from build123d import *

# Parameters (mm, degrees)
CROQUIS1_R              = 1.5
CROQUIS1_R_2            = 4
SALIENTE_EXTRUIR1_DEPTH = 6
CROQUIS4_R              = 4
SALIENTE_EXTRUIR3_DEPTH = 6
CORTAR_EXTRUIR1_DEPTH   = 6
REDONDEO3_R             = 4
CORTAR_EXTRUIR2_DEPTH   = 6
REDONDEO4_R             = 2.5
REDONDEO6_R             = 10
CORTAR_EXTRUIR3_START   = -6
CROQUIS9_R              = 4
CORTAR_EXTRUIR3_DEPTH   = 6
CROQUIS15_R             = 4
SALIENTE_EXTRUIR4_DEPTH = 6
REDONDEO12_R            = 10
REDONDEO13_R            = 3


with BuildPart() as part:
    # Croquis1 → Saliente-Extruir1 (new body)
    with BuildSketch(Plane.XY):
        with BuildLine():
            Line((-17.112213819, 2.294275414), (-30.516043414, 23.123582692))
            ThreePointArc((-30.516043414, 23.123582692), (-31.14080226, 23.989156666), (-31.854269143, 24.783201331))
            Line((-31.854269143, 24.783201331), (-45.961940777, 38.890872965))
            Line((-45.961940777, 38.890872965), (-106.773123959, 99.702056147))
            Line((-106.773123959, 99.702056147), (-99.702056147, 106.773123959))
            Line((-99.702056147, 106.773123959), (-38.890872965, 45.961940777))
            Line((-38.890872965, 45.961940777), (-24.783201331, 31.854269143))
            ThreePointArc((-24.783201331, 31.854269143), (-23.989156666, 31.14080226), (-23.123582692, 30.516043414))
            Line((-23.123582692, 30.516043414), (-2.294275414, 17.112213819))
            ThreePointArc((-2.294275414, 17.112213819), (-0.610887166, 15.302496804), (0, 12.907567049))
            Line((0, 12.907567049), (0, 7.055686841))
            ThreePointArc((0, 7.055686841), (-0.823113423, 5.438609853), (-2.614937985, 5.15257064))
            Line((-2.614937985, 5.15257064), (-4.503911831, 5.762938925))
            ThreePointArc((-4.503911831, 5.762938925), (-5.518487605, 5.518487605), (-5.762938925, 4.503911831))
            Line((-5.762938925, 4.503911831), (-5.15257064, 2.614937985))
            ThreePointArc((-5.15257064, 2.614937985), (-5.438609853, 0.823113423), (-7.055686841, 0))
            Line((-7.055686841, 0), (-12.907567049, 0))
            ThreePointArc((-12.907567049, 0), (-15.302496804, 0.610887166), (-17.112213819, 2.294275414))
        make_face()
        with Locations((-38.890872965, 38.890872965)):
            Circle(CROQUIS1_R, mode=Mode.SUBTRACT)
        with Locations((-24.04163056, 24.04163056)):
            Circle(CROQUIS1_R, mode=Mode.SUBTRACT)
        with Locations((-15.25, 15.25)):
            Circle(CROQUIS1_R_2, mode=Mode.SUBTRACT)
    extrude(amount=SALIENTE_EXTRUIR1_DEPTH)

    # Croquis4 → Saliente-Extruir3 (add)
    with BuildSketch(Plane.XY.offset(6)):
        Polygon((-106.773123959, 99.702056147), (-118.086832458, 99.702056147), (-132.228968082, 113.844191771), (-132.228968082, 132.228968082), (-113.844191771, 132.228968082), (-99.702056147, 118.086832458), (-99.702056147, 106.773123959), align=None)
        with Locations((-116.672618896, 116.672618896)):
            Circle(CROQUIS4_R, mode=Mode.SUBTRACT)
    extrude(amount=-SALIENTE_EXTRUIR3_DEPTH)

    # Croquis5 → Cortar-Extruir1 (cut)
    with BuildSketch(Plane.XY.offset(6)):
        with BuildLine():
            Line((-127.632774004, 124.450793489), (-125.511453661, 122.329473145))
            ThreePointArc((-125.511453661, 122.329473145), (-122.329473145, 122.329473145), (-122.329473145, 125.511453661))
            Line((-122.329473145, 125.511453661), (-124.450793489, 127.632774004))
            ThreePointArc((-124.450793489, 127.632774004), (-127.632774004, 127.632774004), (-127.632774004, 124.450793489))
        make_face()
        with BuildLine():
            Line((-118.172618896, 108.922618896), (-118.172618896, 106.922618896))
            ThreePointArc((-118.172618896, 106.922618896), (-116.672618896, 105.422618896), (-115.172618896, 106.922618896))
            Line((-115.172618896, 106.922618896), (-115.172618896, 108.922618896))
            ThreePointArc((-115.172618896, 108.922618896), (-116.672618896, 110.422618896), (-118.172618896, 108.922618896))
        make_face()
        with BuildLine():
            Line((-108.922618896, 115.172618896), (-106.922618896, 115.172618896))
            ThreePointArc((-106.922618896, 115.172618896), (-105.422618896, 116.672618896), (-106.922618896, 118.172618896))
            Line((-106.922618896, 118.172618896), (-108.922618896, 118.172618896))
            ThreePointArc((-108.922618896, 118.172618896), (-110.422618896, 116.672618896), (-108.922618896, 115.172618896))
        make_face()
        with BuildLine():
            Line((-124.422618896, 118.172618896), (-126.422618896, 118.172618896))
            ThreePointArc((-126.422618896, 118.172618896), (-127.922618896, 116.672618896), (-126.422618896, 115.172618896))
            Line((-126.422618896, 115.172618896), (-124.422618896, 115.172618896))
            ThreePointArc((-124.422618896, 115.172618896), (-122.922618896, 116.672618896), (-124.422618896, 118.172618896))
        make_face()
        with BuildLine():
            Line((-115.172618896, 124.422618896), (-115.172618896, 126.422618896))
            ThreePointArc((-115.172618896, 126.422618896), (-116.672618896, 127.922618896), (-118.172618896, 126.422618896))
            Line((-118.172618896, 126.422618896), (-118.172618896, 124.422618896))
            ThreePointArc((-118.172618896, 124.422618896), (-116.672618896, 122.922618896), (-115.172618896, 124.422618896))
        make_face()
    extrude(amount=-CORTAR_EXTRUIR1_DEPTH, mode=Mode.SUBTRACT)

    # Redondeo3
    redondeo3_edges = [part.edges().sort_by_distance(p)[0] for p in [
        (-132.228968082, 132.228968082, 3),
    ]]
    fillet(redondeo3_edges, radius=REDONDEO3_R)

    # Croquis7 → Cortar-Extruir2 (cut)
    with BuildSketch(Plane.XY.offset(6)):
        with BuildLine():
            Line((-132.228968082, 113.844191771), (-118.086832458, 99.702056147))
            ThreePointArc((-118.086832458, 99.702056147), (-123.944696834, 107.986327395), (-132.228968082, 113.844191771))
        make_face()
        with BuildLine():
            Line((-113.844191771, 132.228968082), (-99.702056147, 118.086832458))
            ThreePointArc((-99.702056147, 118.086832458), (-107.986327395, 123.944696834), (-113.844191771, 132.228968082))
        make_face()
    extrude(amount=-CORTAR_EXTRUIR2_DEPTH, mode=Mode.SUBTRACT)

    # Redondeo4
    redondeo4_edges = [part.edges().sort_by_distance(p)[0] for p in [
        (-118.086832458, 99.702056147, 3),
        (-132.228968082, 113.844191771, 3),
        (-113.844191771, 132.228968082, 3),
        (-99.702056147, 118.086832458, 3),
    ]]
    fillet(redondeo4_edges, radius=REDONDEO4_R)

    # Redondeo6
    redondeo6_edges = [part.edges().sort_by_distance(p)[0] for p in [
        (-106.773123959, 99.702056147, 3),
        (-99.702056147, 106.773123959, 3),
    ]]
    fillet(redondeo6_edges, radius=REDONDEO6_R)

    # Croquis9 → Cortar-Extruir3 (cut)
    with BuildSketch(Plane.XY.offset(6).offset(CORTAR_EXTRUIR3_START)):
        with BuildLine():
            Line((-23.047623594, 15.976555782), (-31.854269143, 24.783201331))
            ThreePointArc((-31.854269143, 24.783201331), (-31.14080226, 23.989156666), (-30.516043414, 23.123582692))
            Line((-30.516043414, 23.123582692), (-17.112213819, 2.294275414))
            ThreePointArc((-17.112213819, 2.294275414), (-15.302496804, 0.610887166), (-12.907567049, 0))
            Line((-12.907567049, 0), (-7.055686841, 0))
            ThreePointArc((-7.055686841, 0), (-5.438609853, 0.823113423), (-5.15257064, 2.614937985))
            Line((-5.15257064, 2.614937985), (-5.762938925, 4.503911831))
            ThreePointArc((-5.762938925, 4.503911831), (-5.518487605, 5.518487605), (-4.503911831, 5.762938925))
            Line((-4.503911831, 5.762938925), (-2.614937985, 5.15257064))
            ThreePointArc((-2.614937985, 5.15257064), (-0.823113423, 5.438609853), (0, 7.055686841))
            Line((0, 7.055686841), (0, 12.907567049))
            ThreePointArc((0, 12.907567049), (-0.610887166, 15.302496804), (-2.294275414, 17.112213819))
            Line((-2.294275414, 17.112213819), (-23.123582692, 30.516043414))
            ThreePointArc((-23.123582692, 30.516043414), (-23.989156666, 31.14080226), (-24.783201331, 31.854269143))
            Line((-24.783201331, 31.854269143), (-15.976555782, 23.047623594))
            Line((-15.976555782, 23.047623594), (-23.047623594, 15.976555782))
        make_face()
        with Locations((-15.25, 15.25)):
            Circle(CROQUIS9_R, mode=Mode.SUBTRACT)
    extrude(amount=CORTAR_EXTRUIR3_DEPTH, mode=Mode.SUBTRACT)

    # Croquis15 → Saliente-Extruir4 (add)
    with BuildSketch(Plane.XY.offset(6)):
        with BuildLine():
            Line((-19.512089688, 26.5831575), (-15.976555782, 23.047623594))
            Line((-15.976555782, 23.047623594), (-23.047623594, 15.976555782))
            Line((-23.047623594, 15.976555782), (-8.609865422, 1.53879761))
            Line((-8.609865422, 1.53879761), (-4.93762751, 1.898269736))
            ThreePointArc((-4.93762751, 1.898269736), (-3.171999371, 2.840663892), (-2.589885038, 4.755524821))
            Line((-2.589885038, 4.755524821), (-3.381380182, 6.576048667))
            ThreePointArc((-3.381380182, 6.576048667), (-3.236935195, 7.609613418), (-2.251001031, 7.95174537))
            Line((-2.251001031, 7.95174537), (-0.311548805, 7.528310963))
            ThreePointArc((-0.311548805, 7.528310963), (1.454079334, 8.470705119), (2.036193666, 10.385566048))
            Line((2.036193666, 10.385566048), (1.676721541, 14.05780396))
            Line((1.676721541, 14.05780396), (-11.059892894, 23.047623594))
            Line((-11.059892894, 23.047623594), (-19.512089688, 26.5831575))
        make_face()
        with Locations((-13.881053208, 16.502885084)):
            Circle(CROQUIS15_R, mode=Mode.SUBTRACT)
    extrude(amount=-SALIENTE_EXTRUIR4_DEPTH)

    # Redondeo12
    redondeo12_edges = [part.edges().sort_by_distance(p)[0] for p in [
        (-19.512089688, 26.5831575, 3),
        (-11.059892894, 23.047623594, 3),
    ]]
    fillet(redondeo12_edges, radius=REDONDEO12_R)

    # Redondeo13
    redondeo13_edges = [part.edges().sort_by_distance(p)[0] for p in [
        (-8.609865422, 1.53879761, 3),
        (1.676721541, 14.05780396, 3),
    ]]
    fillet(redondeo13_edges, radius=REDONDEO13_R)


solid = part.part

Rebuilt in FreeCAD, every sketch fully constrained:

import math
import FreeCAD as App
import Part
import Sketcher
Q = App.Units.Quantity


def edges_at(feature, points):
    """Names of the edges that pass closest to the given points."""
    edges = feature.Shape.Edges
    near = lambda p: min(range(len(edges)), key=lambda i: edges[i].distToShape(Part.Vertex(*p))[0])
    return sorted({f"Edge{near(p) + 1}" for p in points})


def add_polygon(sketch, points):
    """Adds a closed chain of lines whose ends are joined by coincident constraints."""
    first, n = sketch.GeometryCount, len(points)
    for a, b in zip(points, points[1:] + points[:1]):
        sketch.addGeometry(Part.LineSegment(App.Vector(*a, 0), App.Vector(*b, 0)), False)
    for i in range(n):
        sketch.addConstraint(Sketcher.Constraint("Coincident", first + i, 2, first + (i + 1) % n, 1))

doc = App.newDocument("Part")
body = doc.addObject("PartDesign::Body", "Body")

sketch1 = body.newObject("Sketcher::SketchObject", "Sketch")
sketch1.AttachmentSupport = (doc.getObject("XY_Plane"), [""])
sketch1.MapMode = "FlatFace"
sketch1.addGeometry([
    Part.LineSegment(App.Vector(-30.5, 23.1, 0), App.Vector(-17.1, 2.3, 0)),
    Part.ArcOfCircle(Part.Circle(App.Vector(-12.9, 5, 0), App.Vector(0, 0, 1), 5), math.radians(-147), math.radians(-90)),
    Part.LineSegment(App.Vector(-12.9, 0, 0), App.Vector(-7.1, 0, 0)),
    Part.ArcOfCircle(Part.Circle(App.Vector(-7.1, 2, 0), App.Vector(0, 0, 1), 2), math.radians(-90), math.radians(18)),
    Part.LineSegment(App.Vector(-5.2, 2.6, 0), App.Vector(-5.8, 4.5, 0)),
    Part.ArcOfCircle(Part.Circle(App.Vector(-4.8, 4.8, 0), App.Vector(0, 0, 1), 1), math.radians(72), math.radians(198)),
    Part.LineSegment(App.Vector(-4.5, 5.8, 0), App.Vector(-2.6, 5.2, 0)),
    Part.ArcOfCircle(Part.Circle(App.Vector(-2, 7.1, 0), App.Vector(0, 0, 1), 2), math.radians(-108), math.radians(0)),
    Part.LineSegment(App.Vector(0, 7.1, 0), App.Vector(0, 12.9, 0)),
    Part.ArcOfCircle(Part.Circle(App.Vector(-5, 12.9, 0), App.Vector(0, 0, 1), 5), math.radians(0), math.radians(57)),
    Part.LineSegment(App.Vector(-2.3, 17.1, 0), App.Vector(-23.1, 30.5, 0)),
    Part.ArcOfCircle(Part.Circle(App.Vector(-17.7, 38.9, 0), App.Vector(0, 0, 1), 10), math.radians(-135), math.radians(-122.76)),
    Part.LineSegment(App.Vector(-24.8, 31.9, 0), App.Vector(-99.7, 106.8, 0)),
    Part.LineSegment(App.Vector(-99.7, 106.8, 0), App.Vector(-106.8, 99.7, 0)),
    Part.LineSegment(App.Vector(-106.8, 99.7, 0), App.Vector(-31.9, 24.8, 0)),
    Part.ArcOfCircle(Part.Circle(App.Vector(-38.9, 17.7, 0), App.Vector(0, 0, 1), 10), math.radians(32.76), math.radians(45)),
    Part.Circle(App.Vector(-15.2, 15.2, 0), App.Vector(0, 0, 1), 4),
    Part.Circle(App.Vector(-24, 24, 0), App.Vector(0, 0, 1), 1.5),
    Part.Circle(App.Vector(-38.9, 38.9, 0), App.Vector(0, 0, 1), 1.5),
], False)
sketch1.addConstraint([
    Sketcher.Constraint("Tangent", 0, 2, 1, 1),
    Sketcher.Constraint("Tangent", 1, 2, 2, 1),
    Sketcher.Constraint("Tangent", 2, 2, 3, 1),
    Sketcher.Constraint("Tangent", 3, 2, 4, 1),
    Sketcher.Constraint("Tangent", 4, 2, 5, 2),
    Sketcher.Constraint("Tangent", 5, 1, 6, 1),
    Sketcher.Constraint("Tangent", 6, 2, 7, 1),
    Sketcher.Constraint("Tangent", 7, 2, 8, 1),
    Sketcher.Constraint("Tangent", 8, 2, 9, 1),
    Sketcher.Constraint("Tangent", 9, 2, 10, 1),
    Sketcher.Constraint("Tangent", 10, 2, 11, 2),
    Sketcher.Constraint("Tangent", 11, 1, 12, 1),
    Sketcher.Constraint("Coincident", 12, 2, 13, 1),
    Sketcher.Constraint("Coincident", 13, 2, 14, 1),
    Sketcher.Constraint("Tangent", 14, 2, 15, 2),
    Sketcher.Constraint("Tangent", 15, 1, 0, 1),
    Sketcher.Constraint("Horizontal", 2),
    Sketcher.Constraint("Vertical", 8),
    Sketcher.Constraint("Equal", 3, 7),
    Sketcher.Constraint("Equal", 1, 9),
    Sketcher.Constraint("Equal", 11, 15),
    Sketcher.Constraint("Equal", 17, 18),
    Sketcher.Constraint("PointOnObject", 1, 2, -1),
    Sketcher.Constraint("PointOnObject", 7, 2, -2),
    Sketcher.Constraint("Perpendicular", 12, 13),
    Sketcher.Constraint("Perpendicular", 13, 14),
    Sketcher.Constraint("Equal", 2, 8),
    Sketcher.Constraint("Equal", 4, 6),
    Sketcher.Constraint("Equal", 0, 10),
    Sketcher.Constraint("Equal", 12, 14),
    Sketcher.Constraint("Diameter", 16, Q("8 mm")),
    Sketcher.Constraint("Diameter", 17, Q("3 mm")),
    Sketcher.Constraint("Radius", 1, Q("5 mm")),
    Sketcher.Constraint("Radius", 3, Q("2 mm")),
    Sketcher.Constraint("Radius", 5, Q("1 mm")),
    Sketcher.Constraint("Radius", 11, Q("10 mm")),
    Sketcher.Constraint("Angle", 12, Q("135 deg")),
    Sketcher.Constraint("Distance", 13, Q("10 mm")),
    Sketcher.Constraint("DistanceX", 16, 3, -1, 1, Q("15.25 mm")),
    Sketcher.Constraint("DistanceY", -1, 1, 16, 3, Q("15.25 mm")),
    Sketcher.Constraint("DistanceY", 3, 2, 5, 1, Q("3.148001 mm")),
    Sketcher.Constraint("DistanceX", 4, 2, 6, 2, Q("3.148001 mm")),
    Sketcher.Constraint("DistanceX", 2, 1, 2, 2, Q("5.85188 mm")),
    Sketcher.Constraint("DistanceX", 11, 1, -1, 1, Q("24.783201 mm")),
    Sketcher.Constraint("Distance", 0, Q("24.76939 mm")),
    Sketcher.Constraint("Distance", 12, Q("105.951261 mm")),
    Sketcher.Constraint("DistanceX", 17, 3, -1, 1, Q("24.041631 mm")),
    Sketcher.Constraint("DistanceY", -1, 1, 17, 3, Q("24.041631 mm")),
    Sketcher.Constraint("DistanceX", 18, 3, 11, 3, Q("21.178739 mm")),
    Sketcher.Constraint("DistanceY", 15, 3, 18, 3, Q("21.178739 mm")),
])
pad1 = body.newObject("PartDesign::Pad", "Pad")
pad1.Profile = sketch1
pad1.Length = 6

sketch2 = body.newObject("Sketcher::SketchObject", "Sketch001")
sketch2.AttachmentSupport = (doc.getObject("XY_Plane"), [""])
sketch2.MapMode = "FlatFace"
sketch2.AttachmentOffset = App.Placement(App.Vector(0, 0, 6), App.Rotation())
add_polygon(sketch2, [(-118.1, 99.7), (-106.8, 99.7), (-99.7, 106.8), (-99.7, 118.1), (-113.8, 132.2), (-132.2, 132.2), (-132.2, 113.8)])
sketch2.addGeometry(Part.Circle(App.Vector(-116.7, 116.7, 0), App.Vector(0, 0, 1), 4), False)
sketch2.addConstraint([
    Sketcher.Constraint("Horizontal", 0),
    Sketcher.Constraint("Vertical", 2),
    Sketcher.Constraint("Horizontal", 4),
    Sketcher.Constraint("Vertical", 5),
    Sketcher.Constraint("Perpendicular", 1, 3),
    Sketcher.Constraint("Parallel", 3, 6),
    Sketcher.Constraint("Equal", 0, 2),
    Sketcher.Constraint("Equal", 4, 5),
    Sketcher.Constraint("Equal", 3, 6),
    Sketcher.Constraint("Diameter", 7, Q("8 mm")),
    Sketcher.Constraint("Distance", 1, Q("10 mm")),
    Sketcher.Constraint("Distance", 3, Q("20 mm")),
    Sketcher.Constraint("DistanceX", 0, 1, 0, 2, Q("11.313708 mm")),
    Sketcher.Constraint("DistanceX", 7, 3, -1, 1, Q("116.672619 mm")),
    Sketcher.Constraint("DistanceY", -1, 1, 7, 3, Q("116.672619 mm")),
    Sketcher.Constraint("DistanceX", 3, 2, -1, 1, Q("113.844192 mm")),
    Sketcher.Constraint("DistanceY", -1, 1, 3, 2, Q("132.228968 mm")),
])
pad2 = body.newObject("PartDesign::Pad", "Pad001")
pad2.Profile = sketch2
pad2.Length = 6
pad2.Reversed = True

sketch3 = body.newObject("Sketcher::SketchObject", "Sketch002")
sketch3.AttachmentSupport = (doc.getObject("XY_Plane"), [""])
sketch3.MapMode = "FlatFace"
sketch3.AttachmentOffset = App.Placement(App.Vector(0, 0, 6), App.Rotation())
sketch3.addGeometry([
    Part.LineSegment(App.Vector(-127.6, 124.5, 0), App.Vector(-125.5, 122.3, 0)),
    Part.ArcOfCircle(Part.Circle(App.Vector(-123.9, 123.9, 0), App.Vector(0, 0, 1), 2.2), math.radians(-135), math.radians(45)),
    Part.LineSegment(App.Vector(-122.3, 125.5, 0), App.Vector(-124.5, 127.6, 0)),
    Part.ArcOfCircle(Part.Circle(App.Vector(-126, 126, 0), App.Vector(0, 0, 1), 2.2), math.radians(45), math.radians(225)),
    Part.LineSegment(App.Vector(-118.2, 108.9, 0), App.Vector(-118.2, 106.9, 0)),
    Part.ArcOfCircle(Part.Circle(App.Vector(-116.7, 106.9, 0), App.Vector(0, 0, 1), 1.5), math.radians(180), math.radians(360)),
    Part.LineSegment(App.Vector(-115.2, 106.9, 0), App.Vector(-115.2, 108.9, 0)),
    Part.ArcOfCircle(Part.Circle(App.Vector(-116.7, 108.9, 0), App.Vector(0, 0, 1), 1.5), math.radians(0), math.radians(180)),
    Part.LineSegment(App.Vector(-108.9, 115.2, 0), App.Vector(-106.9, 115.2, 0)),
    Part.ArcOfCircle(Part.Circle(App.Vector(-106.9, 116.7, 0), App.Vector(0, 0, 1), 1.5), math.radians(-90), math.radians(90)),
    Part.LineSegment(App.Vector(-106.9, 118.2, 0), App.Vector(-108.9, 118.2, 0)),
    Part.ArcOfCircle(Part.Circle(App.Vector(-108.9, 116.7, 0), App.Vector(0, 0, 1), 1.5), math.radians(90), math.radians(270)),
    Part.LineSegment(App.Vector(-124.4, 118.2, 0), App.Vector(-126.4, 118.2, 0)),
    Part.ArcOfCircle(Part.Circle(App.Vector(-126.4, 116.7, 0), App.Vector(0, 0, 1), 1.5), math.radians(90), math.radians(270)),
    Part.LineSegment(App.Vector(-126.4, 115.2, 0), App.Vector(-124.4, 115.2, 0)),
    Part.ArcOfCircle(Part.Circle(App.Vector(-124.4, 116.7, 0), App.Vector(0, 0, 1), 1.5), math.radians(-90), math.radians(90)),
    Part.LineSegment(App.Vector(-115.2, 124.4, 0), App.Vector(-115.2, 126.4, 0)),
    Part.ArcOfCircle(Part.Circle(App.Vector(-116.7, 126.4, 0), App.Vector(0, 0, 1), 1.5), math.radians(0), math.radians(180)),
    Part.LineSegment(App.Vector(-118.2, 126.4, 0), App.Vector(-118.2, 124.4, 0)),
    Part.ArcOfCircle(Part.Circle(App.Vector(-116.7, 124.4, 0), App.Vector(0, 0, 1), 1.5), math.radians(180), math.radians(360)),
], False)
sketch3.addConstraint([
    Sketcher.Constraint("Tangent", 0, 2, 1, 1),
    Sketcher.Constraint("Tangent", 1, 2, 2, 1),
    Sketcher.Constraint("Tangent", 2, 2, 3, 1),
    Sketcher.Constraint("Tangent", 3, 2, 0, 1),
    Sketcher.Constraint("Tangent", 4, 2, 5, 1),
    Sketcher.Constraint("Tangent", 5, 2, 6, 1),
    Sketcher.Constraint("Tangent", 6, 2, 7, 1),
    Sketcher.Constraint("Tangent", 7, 2, 4, 1),
    Sketcher.Constraint("Tangent", 8, 2, 9, 1),
    Sketcher.Constraint("Tangent", 9, 2, 10, 1),
    Sketcher.Constraint("Tangent", 10, 2, 11, 1),
    Sketcher.Constraint("Tangent", 11, 2, 8, 1),
    Sketcher.Constraint("Tangent", 12, 2, 13, 1),
    Sketcher.Constraint("Tangent", 13, 2, 14, 1),
    Sketcher.Constraint("Tangent", 14, 2, 15, 1),
    Sketcher.Constraint("Tangent", 15, 2, 12, 1),
    Sketcher.Constraint("Tangent", 16, 2, 17, 1),
    Sketcher.Constraint("Tangent", 17, 2, 18, 1),
    Sketcher.Constraint("Tangent", 18, 2, 19, 1),
    Sketcher.Constraint("Tangent", 19, 2, 16, 1),
    Sketcher.Constraint("Vertical", 4),
    Sketcher.Constraint("Vertical", 6),
    Sketcher.Constraint("Horizontal", 8),
    Sketcher.Constraint("Horizontal", 10),
    Sketcher.Constraint("Horizontal", 12),
    Sketcher.Constraint("Horizontal", 14),
    Sketcher.Constraint("Vertical", 16),
    Sketcher.Constraint("Vertical", 18),
    Sketcher.Constraint("Equal", 1, 3),
    Sketcher.Constraint("Equal", 7, 9),
    Sketcher.Constraint("Equal", 11, 13),
    Sketcher.Constraint("Equal", 15, 17),
    Sketcher.Constraint("Horizontal", 11, 3, 13, 3),
    Sketcher.Constraint("Vertical", 7, 3, 17, 3),
    Sketcher.Constraint("Equal", 10, 12),
    Sketcher.Constraint("Equal", 14, 4),
    Sketcher.Constraint("Equal", 6, 16),
    Sketcher.Constraint("Radius", 5, Q("1.5 mm")),
    Sketcher.Constraint("DistanceX", 8, 1, 8, 2, Q("2 mm")),
    Sketcher.Constraint("Angle", 0, Q("-45 deg")),
    Sketcher.Constraint("Radius", 1, Q("2.25 mm")),
    Sketcher.Constraint("Distance", 0, Q("3 mm")),
    Sketcher.Constraint("DistanceX", 13, 3, 11, 3, Q("17.5 mm")),
    Sketcher.Constraint("DistanceX", 7, 3, 9, 3, Q("9.75 mm")),
    Sketcher.Constraint("DistanceY", 7, 3, 9, 3, Q("7.75 mm")),
    Sketcher.Constraint("DistanceY", 11, 3, 17, 3, Q("9.75 mm")),
    Sketcher.Constraint("DistanceX", 5, 3, -1, 1, Q("116.672619 mm")),
    Sketcher.Constraint("DistanceY", -1, 1, 5, 3, Q("106.922619 mm")),
    Sketcher.Constraint("DistanceX", 1, 3, -1, 1, Q("123.920463 mm")),
    Sketcher.Constraint("DistanceY", -1, 1, 1, 3, Q("123.920463 mm")),
])
pocket1 = body.newObject("PartDesign::Pocket", "Pocket")
pocket1.Profile = sketch3
pocket1.Length = 6
doc.recompute()

fillet = body.newObject("PartDesign::Fillet", "Fillet")
fillet.Base = (pocket1, edges_at(pocket1, [(-132.229, 132.229, 3)]))
fillet.Radius = 4

sketch4 = body.newObject("Sketcher::SketchObject", "Sketch003")
sketch4.AttachmentSupport = (doc.getObject("XY_Plane"), [""])
sketch4.MapMode = "FlatFace"
sketch4.AttachmentOffset = App.Placement(App.Vector(0, 0, 6), App.Rotation())
sketch4.addGeometry([
    Part.LineSegment(App.Vector(-132, 114, 0), App.Vector(-118, 100, 0)),
    Part.ArcOfCircle(Part.Circle(App.Vector(-145, 87, 0), App.Vector(0, 0, 1), 30), math.radians(26), math.radians(64)),
    Part.LineSegment(App.Vector(-100, 118, 0), App.Vector(-114, 132, 0)),
    Part.ArcOfCircle(Part.Circle(App.Vector(-87, 145, 0), App.Vector(0, 0, 1), 30), math.radians(-154), math.radians(-116)),
], False)
sketch4.addConstraint([
    Sketcher.Constraint("Coincident", 0, 1, 1, 2),
    Sketcher.Constraint("Coincident", 1, 1, 0, 2),
    Sketcher.Constraint("Coincident", 2, 1, 3, 2),
    Sketcher.Constraint("Coincident", 3, 1, 2, 2),
    Sketcher.Constraint("Equal", 1, 3),
    Sketcher.Constraint("Parallel", 0, 2),
    Sketcher.Constraint("Equal", 0, 2),
    Sketcher.Constraint("Radius", 1, Q("30 mm")),
    Sketcher.Constraint("Angle", 0, Q("-45 deg")),
    Sketcher.Constraint("Distance", 0, Q("20 mm")),
    Sketcher.Constraint("DistanceX", 1, 3, -1, 1, Q("145.1579 mm")),
    Sketcher.Constraint("DistanceY", -1, 1, 3, 3, Q("145.1579 mm")),
    Sketcher.Constraint("DistanceY", -1, 1, 0, 1, Q("113.844192 mm")),
    Sketcher.Constraint("DistanceX", 3, 1, -1, 1, Q("113.844192 mm")),
])
pocket2 = body.newObject("PartDesign::Pocket", "Pocket001")
pocket2.Profile = sketch4
pocket2.Length = 6
doc.recompute()

fillet2 = body.newObject("PartDesign::Fillet", "Fillet001")
fillet2.Base = (pocket2, edges_at(pocket2, [
    (-118.087, 99.702, 3),
    (-132.229, 113.844, 3),
    (-113.844, 132.229, 3),
    (-99.702, 118.087, 3),
]))
fillet2.Radius = 2.5
doc.recompute()

fillet3 = body.newObject("PartDesign::Fillet", "Fillet002")
fillet3.Base = (fillet2, edges_at(fillet2, [(-106.773, 99.702, 3), (-99.702, 106.773, 3)]))
fillet3.Radius = 10

sketch5 = body.newObject("Sketcher::SketchObject", "Sketch004")
sketch5.AttachmentSupport = (doc.getObject("XY_Plane"), [""])
sketch5.MapMode = "FlatFace"
sketch5.addGeometry([
    Part.LineSegment(App.Vector(-23, 16, 0), App.Vector(-31.9, 24.8, 0)),
    Part.ArcOfCircle(Part.Circle(App.Vector(-38.9, 17.7, 0), App.Vector(0, 0, 1), 10), math.radians(32.76), math.radians(45)),
    Part.LineSegment(App.Vector(-30.5, 23.1, 0), App.Vector(-17.1, 2.3, 0)),
    Part.ArcOfCircle(Part.Circle(App.Vector(-12.9, 5, 0), App.Vector(0, 0, 1), 5), math.radians(-147), math.radians(-90)),
    Part.LineSegment(App.Vector(-12.9, 0, 0), App.Vector(-7.1, 0, 0)),
    Part.ArcOfCircle(Part.Circle(App.Vector(-7.1, 2, 0), App.Vector(0, 0, 1), 2), math.radians(-90), math.radians(18)),
    Part.LineSegment(App.Vector(-5.2, 2.6, 0), App.Vector(-5.8, 4.5, 0)),
    Part.ArcOfCircle(Part.Circle(App.Vector(-4.8, 4.8, 0), App.Vector(0, 0, 1), 1), math.radians(72), math.radians(198)),
    Part.LineSegment(App.Vector(-4.5, 5.8, 0), App.Vector(-2.6, 5.2, 0)),
    Part.ArcOfCircle(Part.Circle(App.Vector(-2, 7.1, 0), App.Vector(0, 0, 1), 2), math.radians(-108), math.radians(0)),
    Part.LineSegment(App.Vector(0, 7.1, 0), App.Vector(0, 12.9, 0)),
    Part.ArcOfCircle(Part.Circle(App.Vector(-5, 12.9, 0), App.Vector(0, 0, 1), 5), math.radians(0), math.radians(57)),
    Part.LineSegment(App.Vector(-2.3, 17.1, 0), App.Vector(-23.1, 30.5, 0)),
    Part.ArcOfCircle(Part.Circle(App.Vector(-17.7, 38.9, 0), App.Vector(0, 0, 1), 10), math.radians(-135), math.radians(-122.76)),
    Part.LineSegment(App.Vector(-24.8, 31.9, 0), App.Vector(-16, 23, 0)),
    Part.LineSegment(App.Vector(-16, 23, 0), App.Vector(-23, 16, 0)),
    Part.Circle(App.Vector(-15.2, 15.2, 0), App.Vector(0, 0, 1), 4),
], False)
sketch5.addConstraint([
    Sketcher.Constraint("Tangent", 0, 2, 1, 2),
    Sketcher.Constraint("Tangent", 1, 1, 2, 1),
    Sketcher.Constraint("Tangent", 2, 2, 3, 1),
    Sketcher.Constraint("Tangent", 3, 2, 4, 1),
    Sketcher.Constraint("Tangent", 4, 2, 5, 1),
    Sketcher.Constraint("Tangent", 5, 2, 6, 1),
    Sketcher.Constraint("Tangent", 6, 2, 7, 2),
    Sketcher.Constraint("Tangent", 7, 1, 8, 1),
    Sketcher.Constraint("Tangent", 8, 2, 9, 1),
    Sketcher.Constraint("Tangent", 9, 2, 10, 1),
    Sketcher.Constraint("Tangent", 10, 2, 11, 1),
    Sketcher.Constraint("Tangent", 11, 2, 12, 1),
    Sketcher.Constraint("Tangent", 12, 2, 13, 2),
    Sketcher.Constraint("Tangent", 13, 1, 14, 1),
    Sketcher.Constraint("Coincident", 14, 2, 15, 1),
    Sketcher.Constraint("Coincident", 15, 2, 0, 1),
    Sketcher.Constraint("Horizontal", 4),
    Sketcher.Constraint("Vertical", 10),
    Sketcher.Constraint("Equal", 5, 9),
    Sketcher.Constraint("Equal", 3, 11),
    Sketcher.Constraint("Equal", 1, 13),
    Sketcher.Constraint("PointOnObject", 3, 2, -1),
    Sketcher.Constraint("PointOnObject", 9, 2, -2),
    Sketcher.Constraint("Parallel", 0, 14),
    Sketcher.Constraint("Perpendicular", 14, 15),
    Sketcher.Constraint("Equal", 4, 10),
    Sketcher.Constraint("Equal", 6, 8),
    Sketcher.Constraint("Equal", 2, 12),
    Sketcher.Constraint("Equal", 0, 14),
    Sketcher.Constraint("Diameter", 16, Q("8 mm")),
    Sketcher.Constraint("Radius", 1, Q("10 mm")),
    Sketcher.Constraint("Radius", 3, Q("5 mm")),
    Sketcher.Constraint("Radius", 5, Q("2 mm")),
    Sketcher.Constraint("Radius", 7, Q("1 mm")),
    Sketcher.Constraint("Angle", 0, Q("135 deg")),
    Sketcher.Constraint("Distance", 15, Q("10 mm")),
    Sketcher.Constraint("DistanceX", 16, 3, -1, 1, Q("15.25 mm")),
    Sketcher.Constraint("DistanceY", -1, 1, 16, 3, Q("15.25 mm")),
    Sketcher.Constraint("DistanceY", 5, 2, 7, 1, Q("3.148001 mm")),
    Sketcher.Constraint("DistanceX", 6, 2, 8, 2, Q("3.148001 mm")),
    Sketcher.Constraint("DistanceX", 4, 1, 4, 2, Q("5.85188 mm")),
    Sketcher.Constraint("DistanceY", -1, 1, 0, 2, Q("24.783201 mm")),
    Sketcher.Constraint("Distance", 2, Q("24.76939 mm")),
    Sketcher.Constraint("DistanceY", 14, 2, 12, 2, Q("7.46842 mm")),
])
pocket3 = body.newObject("PartDesign::Pocket", "Pocket002")
pocket3.Profile = sketch5
pocket3.Length = 6
pocket3.Reversed = True

sketch6 = body.newObject("Sketcher::SketchObject", "Sketch005")
sketch6.AttachmentSupport = (doc.getObject("XY_Plane"), [""])
sketch6.MapMode = "FlatFace"
sketch6.AttachmentOffset = App.Placement(App.Vector(0, 0, 6), App.Rotation())
sketch6.addGeometry([
    Part.LineSegment(App.Vector(-19.51209, 26.583157, 0), App.Vector(-15.976556, 23.047624, 0)),
    Part.LineSegment(App.Vector(-15.976556, 23.047624, 0), App.Vector(-23.047624, 15.976556, 0)),
    Part.LineSegment(App.Vector(-23.047624, 15.976556, 0), App.Vector(-8.609865, 1.538798, 0)),
    Part.LineSegment(App.Vector(-8.609865, 1.538798, 0), App.Vector(-4.937628, 1.89827, 0)),
    Part.ArcOfCircle(Part.Circle(App.Vector(-5.192384, 4.500769, 0), App.Vector(0, 0, 1), 2.614938), math.radians(-84.409179), math.radians(5.590821)),
    Part.LineSegment(App.Vector(-2.589885, 4.755525, 0), App.Vector(-3.38138, 6.576049, 0)),
    Part.ArcOfCircle(Part.Circle(App.Vector(-2.464303, 6.974759, 0), App.Vector(0, 0, 1), 1), math.radians(77.684055), math.radians(203.497587)),
    Part.LineSegment(App.Vector(-2.251001, 7.951745, 0), App.Vector(-0.311549, 7.528311, 0)),
    Part.ArcOfCircle(Part.Circle(App.Vector(-0.566305, 10.13081, 0), App.Vector(0, 0, 1), 2.614938), math.radians(-84.409179), math.radians(5.590821)),
    Part.LineSegment(App.Vector(2.036194, 10.385566, 0), App.Vector(1.676722, 14.057804, 0)),
    Part.LineSegment(App.Vector(1.676722, 14.057804, 0), App.Vector(-11.059893, 23.047624, 0)),
    Part.LineSegment(App.Vector(-11.059893, 23.047624, 0), App.Vector(-19.51209, 26.583157, 0)),
    Part.Circle(App.Vector(-13.881053, 16.502885, 0), App.Vector(0, 0, 1), 4),
], False)
sketch6.addConstraint([
    Sketcher.Constraint("Coincident", 0, 2, 1, 1),
    Sketcher.Constraint("Coincident", 1, 2, 2, 1),
    Sketcher.Constraint("Coincident", 2, 2, 3, 1),
    Sketcher.Constraint("Coincident", 3, 2, 4, 1),
    Sketcher.Constraint("Coincident", 4, 2, 5, 1),
    Sketcher.Constraint("Coincident", 5, 2, 6, 2),
    Sketcher.Constraint("Coincident", 6, 1, 7, 1),
    Sketcher.Constraint("Coincident", 7, 2, 8, 1),
    Sketcher.Constraint("Coincident", 8, 2, 9, 1),
    Sketcher.Constraint("Coincident", 9, 2, 10, 1),
    Sketcher.Constraint("Coincident", 10, 2, 11, 1),
    Sketcher.Constraint("Coincident", 11, 2, 0, 1),
    Sketcher.Constraint("Diameter", 12, Q("8 mm")),
    Sketcher.Constraint("Radius", 6, Q("1 mm")),
    Sketcher.Constraint("Distance", 0, Q("5 mm")),
    Sketcher.Constraint("Distance", 1, Q("10 mm")),
    Sketcher.Constraint("DistanceX", 6, 1, -1, 1, Q("2.251001 mm")),
    Sketcher.Constraint("Radius", 4, Q("2.614938 mm")),
    Sketcher.Constraint("Radius", 8, Q("2.614938 mm")),
    Sketcher.Constraint("DistanceX", 6, 3, 8, 3, Q("1.897998 mm")),
    Sketcher.Constraint("DistanceY", 3, 2, 4, 3, Q("2.602499 mm")),
    Sketcher.Constraint("DistanceX", 4, 3, 4, 2, Q("2.602499 mm")),
    Sketcher.Constraint("DistanceY", 7, 2, 8, 3, Q("2.602499 mm")),
    Sketcher.Constraint("DistanceX", 8, 3, 8, 2, Q("2.602499 mm")),
    Sketcher.Constraint("DistanceY", 1, 2, 11, 2, Q("10.606602 mm")),
    Sketcher.Constraint("Distance", 3, Q("3.68979 mm")),
    Sketcher.Constraint("Distance", 9, Q("3.68979 mm")),
    Sketcher.Constraint("DistanceY", -1, 1, 4, 3, Q("4.500769 mm")),
    Sketcher.Constraint("DistanceY", -1, 1, 6, 3, Q("6.974759 mm")),
    Sketcher.Constraint("DistanceY", -1, 1, 8, 3, Q("10.13081 mm")),
    Sketcher.Constraint("DistanceX", 5, 2, -1, 1, Q("3.38138 mm")),
    Sketcher.Constraint("DistanceY", -1, 1, 5, 2, Q("6.576049 mm")),
    Sketcher.Constraint("DistanceX", -1, 1, 9, 2, Q("1.676722 mm")),
    Sketcher.Constraint("DistanceX", 11, 2, -1, 1, Q("19.51209 mm")),
    Sketcher.Constraint("DistanceX", 4, 3, 6, 3, Q("2.728081 mm")),
    Sketcher.Constraint("DistanceX", 12, 3, 8, 3, Q("13.314748 mm")),
    Sketcher.Constraint("DistanceY", 12, 3, 0, 2, Q("6.544739 mm")),
    Sketcher.Constraint("DistanceX", 0, 2, 8, 3, Q("15.410251 mm")),
    Sketcher.Constraint("DistanceX", 2, 2, 4, 3, Q("3.417482 mm")),
    Sketcher.Constraint("DistanceY", 2, 2, 1, 2, Q("14.437758 mm")),
    Sketcher.Constraint("DistanceX", 12, 3, 10, 2, Q("2.82116 mm")),
    Sketcher.Constraint("DistanceY", 12, 3, 10, 2, Q("6.544739 mm")),
])
pad3 = body.newObject("PartDesign::Pad", "Pad002")
pad3.Profile = sketch6
pad3.Length = 6
pad3.Reversed = True
doc.recompute()

fillet4 = body.newObject("PartDesign::Fillet", "Fillet003")
fillet4.Base = (pad3, edges_at(pad3, [(-19.512, 26.583, 3), (-11.06, 23.048, 3)]))
fillet4.Radius = 10
doc.recompute()

fillet5 = body.newObject("PartDesign::Fillet", "Fillet004")
fillet5.Base = (fillet4, edges_at(fillet4, [(-8.61, 1.539, 3), (1.677, 14.058, 3)]))
fillet5.Radius = 3

doc.recompute()
